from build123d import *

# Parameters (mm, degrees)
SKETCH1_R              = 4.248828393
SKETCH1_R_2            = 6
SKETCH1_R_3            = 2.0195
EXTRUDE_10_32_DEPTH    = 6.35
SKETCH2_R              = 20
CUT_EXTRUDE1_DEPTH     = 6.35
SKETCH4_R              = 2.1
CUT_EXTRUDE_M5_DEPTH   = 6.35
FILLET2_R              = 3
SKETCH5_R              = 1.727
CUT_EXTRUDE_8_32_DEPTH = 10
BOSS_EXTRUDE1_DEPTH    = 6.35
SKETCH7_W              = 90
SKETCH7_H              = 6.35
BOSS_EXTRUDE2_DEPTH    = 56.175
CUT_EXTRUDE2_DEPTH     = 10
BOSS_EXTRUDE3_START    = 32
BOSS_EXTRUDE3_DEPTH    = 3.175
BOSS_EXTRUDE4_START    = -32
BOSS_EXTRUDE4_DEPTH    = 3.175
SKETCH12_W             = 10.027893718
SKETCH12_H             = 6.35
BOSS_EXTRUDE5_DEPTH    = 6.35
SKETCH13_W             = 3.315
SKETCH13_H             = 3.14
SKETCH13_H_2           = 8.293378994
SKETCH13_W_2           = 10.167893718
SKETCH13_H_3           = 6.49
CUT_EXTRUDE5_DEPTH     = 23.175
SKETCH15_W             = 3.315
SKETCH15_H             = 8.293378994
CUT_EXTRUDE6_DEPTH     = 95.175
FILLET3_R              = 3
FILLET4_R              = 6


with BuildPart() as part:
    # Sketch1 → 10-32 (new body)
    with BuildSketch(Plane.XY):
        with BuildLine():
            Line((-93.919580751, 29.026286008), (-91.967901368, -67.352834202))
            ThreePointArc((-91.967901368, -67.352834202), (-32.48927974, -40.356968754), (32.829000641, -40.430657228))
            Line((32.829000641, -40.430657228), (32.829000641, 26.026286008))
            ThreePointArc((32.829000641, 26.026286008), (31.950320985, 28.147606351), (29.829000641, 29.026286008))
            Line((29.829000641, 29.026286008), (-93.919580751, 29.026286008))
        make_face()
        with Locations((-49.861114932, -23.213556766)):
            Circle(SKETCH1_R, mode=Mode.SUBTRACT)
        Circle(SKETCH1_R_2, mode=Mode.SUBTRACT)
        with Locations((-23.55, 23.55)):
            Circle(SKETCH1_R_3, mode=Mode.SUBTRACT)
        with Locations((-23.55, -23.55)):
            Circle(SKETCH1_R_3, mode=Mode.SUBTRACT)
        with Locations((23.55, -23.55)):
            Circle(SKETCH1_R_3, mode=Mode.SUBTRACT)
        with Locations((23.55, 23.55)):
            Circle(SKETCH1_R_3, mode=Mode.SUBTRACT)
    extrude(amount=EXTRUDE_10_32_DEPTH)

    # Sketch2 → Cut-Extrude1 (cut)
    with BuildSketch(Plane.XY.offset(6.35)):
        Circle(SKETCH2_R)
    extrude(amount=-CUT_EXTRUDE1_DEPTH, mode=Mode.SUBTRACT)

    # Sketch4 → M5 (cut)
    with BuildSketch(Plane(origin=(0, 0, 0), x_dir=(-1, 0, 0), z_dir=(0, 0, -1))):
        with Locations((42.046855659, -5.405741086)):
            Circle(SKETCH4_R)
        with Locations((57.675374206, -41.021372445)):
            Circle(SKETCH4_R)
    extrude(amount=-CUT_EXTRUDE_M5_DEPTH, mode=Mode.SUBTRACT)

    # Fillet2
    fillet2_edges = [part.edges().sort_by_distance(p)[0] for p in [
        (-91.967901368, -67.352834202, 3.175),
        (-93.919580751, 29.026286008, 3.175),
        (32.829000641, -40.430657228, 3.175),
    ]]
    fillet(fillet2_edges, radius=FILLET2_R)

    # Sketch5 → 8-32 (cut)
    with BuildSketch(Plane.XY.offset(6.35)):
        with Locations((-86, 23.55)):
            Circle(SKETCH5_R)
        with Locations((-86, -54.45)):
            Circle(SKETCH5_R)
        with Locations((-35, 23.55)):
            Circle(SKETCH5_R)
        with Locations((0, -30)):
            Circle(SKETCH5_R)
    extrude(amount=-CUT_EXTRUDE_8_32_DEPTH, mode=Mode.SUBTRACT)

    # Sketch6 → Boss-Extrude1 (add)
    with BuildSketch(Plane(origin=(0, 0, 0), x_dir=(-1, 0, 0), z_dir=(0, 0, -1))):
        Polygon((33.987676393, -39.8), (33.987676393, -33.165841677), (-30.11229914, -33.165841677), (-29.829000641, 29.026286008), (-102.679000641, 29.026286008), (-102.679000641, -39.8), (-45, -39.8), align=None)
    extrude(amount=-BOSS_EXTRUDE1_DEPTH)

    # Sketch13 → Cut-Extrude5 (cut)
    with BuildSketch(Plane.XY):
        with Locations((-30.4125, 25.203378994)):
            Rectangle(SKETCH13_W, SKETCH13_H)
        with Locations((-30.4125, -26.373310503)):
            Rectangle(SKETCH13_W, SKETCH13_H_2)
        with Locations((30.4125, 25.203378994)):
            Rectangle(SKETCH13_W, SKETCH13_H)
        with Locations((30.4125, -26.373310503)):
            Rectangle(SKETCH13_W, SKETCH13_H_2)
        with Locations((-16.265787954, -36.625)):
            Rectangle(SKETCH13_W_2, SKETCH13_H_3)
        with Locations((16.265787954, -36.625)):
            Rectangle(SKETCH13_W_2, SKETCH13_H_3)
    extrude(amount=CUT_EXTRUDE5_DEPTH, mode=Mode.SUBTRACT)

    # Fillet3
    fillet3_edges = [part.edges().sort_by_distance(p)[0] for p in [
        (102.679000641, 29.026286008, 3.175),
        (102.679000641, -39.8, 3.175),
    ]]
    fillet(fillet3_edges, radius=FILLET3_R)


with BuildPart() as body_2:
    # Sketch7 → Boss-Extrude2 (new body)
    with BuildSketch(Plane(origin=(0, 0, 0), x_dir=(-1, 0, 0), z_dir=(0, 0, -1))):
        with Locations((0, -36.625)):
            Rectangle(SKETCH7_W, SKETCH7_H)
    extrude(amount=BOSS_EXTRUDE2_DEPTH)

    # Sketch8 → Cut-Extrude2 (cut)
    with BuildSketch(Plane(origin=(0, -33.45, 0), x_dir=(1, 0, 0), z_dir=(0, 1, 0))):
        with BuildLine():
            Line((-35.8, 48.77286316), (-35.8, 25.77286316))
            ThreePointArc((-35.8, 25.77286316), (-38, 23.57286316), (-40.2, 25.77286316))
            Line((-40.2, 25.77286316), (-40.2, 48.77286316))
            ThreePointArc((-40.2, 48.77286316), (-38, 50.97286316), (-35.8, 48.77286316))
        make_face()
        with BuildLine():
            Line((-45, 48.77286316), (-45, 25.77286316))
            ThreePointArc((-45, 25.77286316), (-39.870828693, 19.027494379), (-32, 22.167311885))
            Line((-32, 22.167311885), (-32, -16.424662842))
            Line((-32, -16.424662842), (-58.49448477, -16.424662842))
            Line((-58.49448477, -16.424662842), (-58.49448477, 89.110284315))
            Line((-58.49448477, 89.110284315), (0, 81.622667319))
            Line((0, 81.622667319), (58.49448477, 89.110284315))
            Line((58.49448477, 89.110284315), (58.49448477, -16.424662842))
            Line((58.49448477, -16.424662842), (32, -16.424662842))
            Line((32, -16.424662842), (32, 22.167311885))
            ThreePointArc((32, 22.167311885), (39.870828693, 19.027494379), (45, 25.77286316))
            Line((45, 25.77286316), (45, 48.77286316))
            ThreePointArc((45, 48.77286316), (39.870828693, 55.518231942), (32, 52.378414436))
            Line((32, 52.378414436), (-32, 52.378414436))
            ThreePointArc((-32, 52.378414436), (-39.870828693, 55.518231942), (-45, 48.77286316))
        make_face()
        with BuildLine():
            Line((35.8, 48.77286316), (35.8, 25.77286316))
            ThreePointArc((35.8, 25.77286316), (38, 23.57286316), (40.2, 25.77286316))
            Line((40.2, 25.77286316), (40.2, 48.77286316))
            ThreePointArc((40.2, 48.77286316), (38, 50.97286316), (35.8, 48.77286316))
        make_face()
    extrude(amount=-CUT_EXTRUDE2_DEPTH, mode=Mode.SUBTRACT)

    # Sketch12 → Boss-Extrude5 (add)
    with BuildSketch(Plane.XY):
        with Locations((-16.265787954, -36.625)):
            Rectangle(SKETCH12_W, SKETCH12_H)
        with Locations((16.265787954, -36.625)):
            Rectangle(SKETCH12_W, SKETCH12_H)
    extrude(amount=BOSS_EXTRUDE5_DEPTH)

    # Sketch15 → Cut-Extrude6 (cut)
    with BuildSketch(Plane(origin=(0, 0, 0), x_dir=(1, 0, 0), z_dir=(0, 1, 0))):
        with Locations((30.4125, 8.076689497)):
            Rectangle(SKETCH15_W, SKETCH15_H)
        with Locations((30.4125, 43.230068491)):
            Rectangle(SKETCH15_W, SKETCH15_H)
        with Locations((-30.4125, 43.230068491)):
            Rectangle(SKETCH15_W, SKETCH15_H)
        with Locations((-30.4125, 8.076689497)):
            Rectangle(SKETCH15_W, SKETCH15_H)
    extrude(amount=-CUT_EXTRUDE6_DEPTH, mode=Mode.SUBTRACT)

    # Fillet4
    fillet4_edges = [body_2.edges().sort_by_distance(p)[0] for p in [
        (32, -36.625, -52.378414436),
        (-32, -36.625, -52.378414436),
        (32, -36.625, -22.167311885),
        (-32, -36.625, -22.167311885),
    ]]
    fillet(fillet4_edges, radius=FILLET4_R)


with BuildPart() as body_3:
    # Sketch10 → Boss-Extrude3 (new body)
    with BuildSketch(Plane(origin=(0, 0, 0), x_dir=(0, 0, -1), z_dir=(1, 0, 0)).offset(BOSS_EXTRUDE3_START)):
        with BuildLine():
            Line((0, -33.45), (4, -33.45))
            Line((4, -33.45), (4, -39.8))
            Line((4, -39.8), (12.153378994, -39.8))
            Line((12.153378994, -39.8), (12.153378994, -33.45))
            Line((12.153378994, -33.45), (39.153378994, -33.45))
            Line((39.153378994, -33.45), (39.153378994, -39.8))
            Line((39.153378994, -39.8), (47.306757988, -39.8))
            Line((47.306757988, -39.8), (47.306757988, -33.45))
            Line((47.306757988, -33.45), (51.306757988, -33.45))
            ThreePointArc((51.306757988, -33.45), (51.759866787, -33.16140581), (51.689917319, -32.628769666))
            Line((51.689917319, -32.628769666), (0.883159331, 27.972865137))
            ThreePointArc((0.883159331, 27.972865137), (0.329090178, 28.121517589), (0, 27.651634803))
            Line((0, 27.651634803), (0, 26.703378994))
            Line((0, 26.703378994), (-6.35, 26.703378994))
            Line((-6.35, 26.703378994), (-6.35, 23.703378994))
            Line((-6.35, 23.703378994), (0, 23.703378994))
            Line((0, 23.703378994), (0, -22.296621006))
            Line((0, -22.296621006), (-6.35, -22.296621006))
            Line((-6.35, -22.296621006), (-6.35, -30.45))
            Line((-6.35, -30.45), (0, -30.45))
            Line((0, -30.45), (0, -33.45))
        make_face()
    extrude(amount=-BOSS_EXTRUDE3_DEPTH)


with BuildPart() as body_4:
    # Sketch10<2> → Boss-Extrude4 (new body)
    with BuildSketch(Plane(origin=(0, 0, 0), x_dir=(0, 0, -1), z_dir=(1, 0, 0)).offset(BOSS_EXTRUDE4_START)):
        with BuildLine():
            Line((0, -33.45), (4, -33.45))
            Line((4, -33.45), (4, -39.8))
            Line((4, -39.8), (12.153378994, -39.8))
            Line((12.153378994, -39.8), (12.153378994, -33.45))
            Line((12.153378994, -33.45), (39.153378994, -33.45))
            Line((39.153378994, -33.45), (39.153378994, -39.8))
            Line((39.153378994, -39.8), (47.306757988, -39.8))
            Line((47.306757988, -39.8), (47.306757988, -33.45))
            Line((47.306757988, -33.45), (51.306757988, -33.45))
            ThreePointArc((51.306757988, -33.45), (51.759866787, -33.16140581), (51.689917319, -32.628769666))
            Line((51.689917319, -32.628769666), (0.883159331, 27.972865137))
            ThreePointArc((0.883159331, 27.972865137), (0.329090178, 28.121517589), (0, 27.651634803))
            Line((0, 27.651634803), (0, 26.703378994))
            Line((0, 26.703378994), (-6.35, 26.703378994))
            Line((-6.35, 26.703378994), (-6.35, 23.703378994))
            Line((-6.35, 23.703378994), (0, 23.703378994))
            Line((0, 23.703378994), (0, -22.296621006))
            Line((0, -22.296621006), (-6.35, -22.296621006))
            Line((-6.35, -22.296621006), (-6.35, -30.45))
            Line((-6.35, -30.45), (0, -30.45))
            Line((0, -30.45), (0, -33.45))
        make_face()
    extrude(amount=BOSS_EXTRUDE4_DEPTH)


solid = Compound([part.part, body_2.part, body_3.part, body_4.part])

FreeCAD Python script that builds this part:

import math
import FreeCAD as App
import Part
import Sketcher


def edges_at(feature, points):
    """Names of the edges that pass closest to the given points."""
    edges = feature.Shape.Edges
    near = lambda p: min(range(len(edges)), key=lambda i: edges[i].distToShape(Part.Vertex(*p))[0])
    return sorted({f"Edge{near(p) + 1}" for p in points})


def add_polygon(sketch, points):
    """Adds a closed chain of lines whose ends are joined by coincident constraints."""
    first, n = sketch.GeometryCount, len(points)
    for a, b in zip(points, points[1:] + points[:1]):
        sketch.addGeometry(Part.LineSegment(App.Vector(*a, 0), App.Vector(*b, 0)), False)
    for i in range(n):
        sketch.addConstraint(Sketcher.Constraint("Coincident", first + i, 2, first + (i + 1) % n, 1))

doc = App.newDocument("Part")
body = doc.addObject("PartDesign::Body", "Body")

# Sketch on XY plane
sketch1 = body.newObject("Sketcher::SketchObject", "Sketch")
sketch1.AttachmentSupport = (doc.getObject("XY_Plane"), [""])
sketch1.MapMode = "FlatFace"
sketch1.addGeometry([
    Part.LineSegment(App.Vector(-93.919581, 29.026286, 0), App.Vector(-91.967901, -67.352834, 0)),  # 0
    Part.ArcOfCircle(Part.Circle(App.Vector(0, -190.96, 0), App.Vector(0, 0, 1), 154.067603), math.radians(77.696986), math.radians(126.650492)),  # 1
    Part.LineSegment(App.Vector(32.829001, -40.430657, 0), App.Vector(32.829001, 26.026286, 0)),  # 2
    Part.ArcOfCircle(Part.Circle(App.Vector(29.829001, 26.026286, 0), App.Vector(0, 0, 1), 3), math.radians(0), math.radians(90)),  # 3
    Part.LineSegment(App.Vector(29.829001, 29.026286, 0), App.Vector(-93.919581, 29.026286, 0)),  # 4
    Part.Circle(App.Vector(-49.861115, -23.213557, 0), App.Vector(0, 0, 1), 4.248828),  # 5
    Part.Circle(App.Vector(-23.55, -23.55, 0), App.Vector(0, 0, 1), 2.0195),  # 6
    Part.Circle(App.Vector(23.55, -23.55, 0), App.Vector(0, 0, 1), 2.0195),  # 7
    Part.Circle(App.Vector(-23.55, 23.55, 0), App.Vector(0, 0, 1), 2.0195),  # 8
    Part.Circle(App.Vector(0, 0, 0), App.Vector(0, 0, 1), 6),  # 9
    Part.Circle(App.Vector(23.55, 23.55, 0), App.Vector(0, 0, 1), 2.0195),  # 10
], False)
sketch1.addConstraint([
    Sketcher.Constraint("Coincident", 0, 2, 1, 2),
    Sketcher.Constraint("Coincident", 1, 1, 2, 1),
    Sketcher.Constraint("Tangent", 2, 2, 3, 1),
    Sketcher.Constraint("Tangent", 3, 2, 4, 1),
    Sketcher.Constraint("Coincident", 4, 2, 0, 1),
    Sketcher.Constraint("Vertical", 2),
    Sketcher.Constraint("Horizontal", 4),
    Sketcher.Constraint("Coincident", 9, 3, -1, 1),
    Sketcher.Constraint("Equal", 6, 7),
    Sketcher.Constraint("Equal", 7, 8),
    Sketcher.Constraint("Equal", 8, 10),
    Sketcher.Constraint("Symmetric", 7, 3, 8, 3, -1, 1),
    Sketcher.Constraint("Symmetric", 6, 3, 10, 3, -1, 1),
    Sketcher.Constraint("Symmetric", 6, 3, 7, 3, -2),
    Sketcher.Constraint("PointOnObject", 1, 3, -2),
    Sketcher.Constraint("Diameter", 9, 12.0),
    Sketcher.Constraint("Radius", 3, 3.0),
    Sketcher.Constraint("Diameter", 6, 4.039),
    Sketcher.Constraint("DistanceX", 6, 3, 7, 3, 47.1),
    Sketcher.Constraint("DistanceY", 6, 3, 8, 3, 47.1),
    Sketcher.Constraint("DistanceY", 1, 3, -1, 1, 190.96),
    Sketcher.Constraint("Diameter", 5, 8.497657),
    Sketcher.Constraint("DistanceX", -1, 1, 3, 3, 29.829001),
    Sketcher.Constraint("Radius", 1, 154.067603),
    Sketcher.Constraint("DistanceX", 4, 2, 4, 1, 123.748581),
    Sketcher.Constraint("DistanceX", 0, 2, -1, 1, 91.967901),
    Sketcher.Constraint("Distance", 0, 96.398879),
    Sketcher.Constraint("DistanceX", 5, 3, -1, 1, 49.861115),
    Sketcher.Constraint("DistanceY", 5, 3, -1, 1, 23.213557),
])
pad1 = body.newObject("PartDesign::Pad", "Pad")
pad1.Profile = sketch1
pad1.Length = 6.35

# Sketch on XY plane
sketch2 = body.newObject("Sketcher::SketchObject", "Sketch001")
sketch2.AttachmentSupport = (doc.getObject("XY_Plane"), [""])
sketch2.MapMode = "FlatFace"
sketch2.AttachmentOffset = App.Placement(App.Vector(0, 0, 6.35), App.Rotation())
sketch2.addGeometry(Part.Circle(App.Vector(0, 0, 0), App.Vector(0, 0, 1), 20), False)
sketch2.addConstraint([
    Sketcher.Constraint("Coincident", 0, 3, -1, 1),
    Sketcher.Constraint("Diameter", 0, 40.0),
])
pocket1 = body.newObject("PartDesign::Pocket", "Pocket")
pocket1.Profile = sketch2
pocket1.Length = 6.35

# Sketch on XY plane
sketch3 = body.newObject("Sketcher::SketchObject", "Sketch002")
sketch3.AttachmentSupport = (doc.getObject("XY_Plane"), [""])
sketch3.MapMode = "FlatFace"
sketch3.addGeometry([
    Part.Circle(App.Vector(-42.046856, -5.405741, 0), App.Vector(0, 0, 1), 2.1),
    Part.Circle(App.Vector(-57.675374, -41.021372, 0), App.Vector(0, 0, 1), 2.1),
], False)
sketch3.addConstraint([
    Sketcher.Constraint("Equal", 0, 1),
    Sketcher.Constraint("Diameter", 0, 4.2),
    Sketcher.Constraint("DistanceY", 0, 3, -1, 1, 5.405741),
    Sketcher.Constraint("DistanceX", 1, 3, 0, 3, 15.628519),
    Sketcher.Constraint("DistanceY", 1, 3, 0, 3, 35.615631),
    Sketcher.Constraint("DistanceX", 0, 3, -1, 1, 42.046856),
])
pocket2 = body.newObject("PartDesign::Pocket", "Pocket001")
pocket2.Profile = sketch3
pocket2.Length = 6.35
pocket2.Reversed = True
doc.recompute()

fillet = body.newObject("PartDesign::Fillet", "Fillet")
fillet.Base = (pocket2, edges_at(pocket2, [(-91.968, -67.353, 3.175), (-93.92, 29.026, 3.175), (32.829, -40.431, 3.175)]))
fillet.Radius = 3

# Sketch on XY plane
sketch4 = body.newObject("Sketcher::SketchObject", "Sketch003")
sketch4.AttachmentSupport = (doc.getObject("XY_Plane"), [""])
sketch4.MapMode = "FlatFace"
sketch4.AttachmentOffset = App.Placement(App.Vector(0, 0, 6.35), App.Rotation())
sketch4.addGeometry([
    Part.Circle(App.Vector(-86, 23.55, 0), App.Vector(0, 0, 1), 1.727),
    Part.Circle(App.Vector(-86, -54.45, 0), App.Vector(0, 0, 1), 1.727),
    Part.Circle(App.Vector(-35, 23.55, 0), App.Vector(0, 0, 1), 1.727),
    Part.Circle(App.Vector(0, -30, 0), App.Vector(0, 0, 1), 1.727),
], False)
sketch4.addConstraint([
    Sketcher.Constraint("Equal", 0, 1),
    Sketcher.Constraint("Equal", 1, 2),
    Sketcher.Constraint("Equal", 2, 3),
    Sketcher.Constraint("PointOnObject", 3, 3, -2),
    Sketcher.Constraint("Horizontal", 0, 3, 2, 3),
    Sketcher.Constraint("Vertical", 0, 3, 1, 3),
    Sketcher.Constraint("Diameter", 0, 3.454),
    Sketcher.Constraint("DistanceX", 0, 3, -1, 1, 86.0),
    Sketcher.Constraint("DistanceX", 2, 3, -1, 1, 35.0),
    Sketcher.Constraint("DistanceY", 3, 3, -1, 1, 30.0),
    Sketcher.Constraint("DistanceY", 1, 3, 0, 3, 78.0),
    Sketcher.Constraint("DistanceY", -1, 1, 0, 3, 23.55),
])
pocket3 = body.newObject("PartDesign::Pocket", "Pocket002")
pocket3.Profile = sketch4
pocket3.Length = 10

# Sketch on XY plane
sketch5 = body.newObject("Sketcher::SketchObject", "Sketch004")
sketch5.AttachmentSupport = (doc.getObject("XY_Plane"), [""])
sketch5.MapMode = "FlatFace"
add_polygon(sketch5, [(-33.987676, -39.8), (-33.987676, -33.165842), (30.112299, -33.165842), (29.829001, 29.026286), (102.679001, 29.026286), (102.679001, -39.8)])  # lines 0-5
sketch5.addConstraint([
    Sketcher.Constraint("Vertical", 0),
    Sketcher.Constraint("Horizontal", 1),
    Sketcher.Constraint("Horizontal", 3),
    Sketcher.Constraint("Vertical", 4),
    Sketcher.Constraint("Horizontal", 5),
    Sketcher.Constraint("DistanceX", 3, 1, 3, 2, 72.85),
    Sketcher.Constraint("DistanceY", 4, 2, -1, 1, 39.8),
    Sketcher.Constraint("DistanceX", -1, 1, 2, 2, 29.829001),
    Sketcher.Constraint("DistanceY", 0, 1, 0, 2, 6.634158),
    Sketcher.Constraint("DistanceX", -1, 1, 1, 2, 30.112299),
    Sketcher.Constraint("DistanceX", 1, 1, 1, 2, 64.099976),
    Sketcher.Constraint("DistanceY", 4, 2, 4, 1, 68.826286),
])
pad2 = body.newObject("PartDesign::Pad", "Pad001")
pad2.Profile = sketch5
pad2.Length = 6.35

# Sketch on XY plane
sketch6 = body.newObject("Sketcher::SketchObject", "Sketch005")
sketch6.AttachmentSupport = (doc.getObject("XY_Plane"), [""])
sketch6.MapMode = "FlatFace"
add_polygon(sketch6, [(-32.07, 26.773379), (-32.07, 23.633379), (-28.755, 23.633379), (-28.755, 26.773379)])  # lines 0-3
add_polygon(sketch6, [(-32.07, -22.226621), (-32.07, -30.52), (-28.755, -30.52), (-28.755, -22.226621)])  # lines 4-7
add_polygon(sketch6, [(28.755, 26.773379), (28.755, 23.633379), (32.07, 23.633379), (32.07, 26.773379)])  # lines 8-11
add_polygon(sketch6, [(28.755, -22.226621), (28.755, -30.52), (32.07, -30.52), (32.07, -22.226621)])  # lines 12-15
add_polygon(sketch6, [(-21.349735, -33.38), (-21.349735, -39.87), (-11.181841, -39.87), (-11.181841, -33.38)])  # lines 16-19
add_polygon(sketch6, [(11.181841, -33.38), (11.181841, -39.87), (21.349735, -39.87), (21.349735, -33.38)])  # lines 20-23
sketch6.addConstraint([
    Sketcher.Constraint("Vertical", 0),
    Sketcher.Constraint("Horizontal", 1),
    Sketcher.Constraint("Vertical", 2),
    Sketcher.Constraint("Horizontal", 3),
    Sketcher.Constraint("Vertical", 4),
    Sketcher.Constraint("Horizontal", 5),
    Sketcher.Constraint("Vertical", 6),
    Sketcher.Constraint("Horizontal", 7),
    Sketcher.Constraint("Vertical", 8),
    Sketcher.Constraint("Horizontal", 9),
    Sketcher.Constraint("Vertical", 10),
    Sketcher.Constraint("Horizontal", 11),
    Sketcher.Constraint("Vertical", 12),
    Sketcher.Constraint("Horizontal", 13),
    Sketcher.Constraint("Vertical", 14),
    Sketcher.Constraint("Horizontal", 15),
    Sketcher.Constraint("Vertical", 16),
    Sketcher.Constraint("Horizontal", 17),
    Sketcher.Constraint("Vertical", 18),
    Sketcher.Constraint("Horizontal", 19),
    Sketcher.Constraint("Vertical", 20),
    Sketcher.Constraint("Horizontal", 21),
    Sketcher.Constraint("Vertical", 22),
    Sketcher.Constraint("Horizontal", 23),
    Sketcher.Constraint("Symmetric", 1, 2, 8, 2, -2),
    Sketcher.Constraint("Symmetric", 3, 2, 10, 2, -2),
    Sketcher.Constraint("Symmetric", 5, 2, 12, 2, -2),
    Sketcher.Constraint("Symmetric", 7, 2, 14, 2, -2),
    Sketcher.Constraint("Symmetric", 17, 2, 20, 2, -2),
    Sketcher.Constraint("Symmetric", 19, 2, 22, 2, -2),
    Sketcher.Constraint("Vertical", 3, 2, 4, 2),
    Sketcher.Constraint("Vertical", 2, 2, 5, 2),
    Sketcher.Constraint("DistanceY", 6, 2, 2, 2, 49.0),
    Sketcher.Constraint("DistanceY", 0, 2, 0, 1, 3.14),
    Sketcher.Constraint("DistanceY", 16, 2, 16, 1, 6.49),
    Sketcher.Constraint("DistanceX", 1, 1, 1, 2, 3.315),
    Sketcher.Constraint("DistanceX", 0, 2, -1, 1, 32.07),
    Sketcher.Constraint("DistanceY", 4, 2, -1, 1, 30.52),
    Sketcher.Constraint("DistanceY", 16, 2, -1, 1, 39.87),
    Sketcher.Constraint("DistanceY", 4, 2, 4, 1, 8.293379),
    Sketcher.Constraint("DistanceX", 17, 1, 17, 2, 10.167894),
    Sketcher.Constraint("DistanceX", 17, 2, -1, 1, 11.181841),
])
pocket4 = body.newObject("PartDesign::Pocket", "Pocket003")
pocket4.Profile = sketch6
pocket4.Length = 23.175
pocket4.Reversed = True
doc.recompute()

fillet2 = body.newObject("PartDesign::Fillet", "Fillet001")
fillet2.Base = (pocket4, edges_at(pocket4, [(102.679, 29.026, 3.175), (102.679, -39.8, 3.175)]))
fillet2.Radius = 3
body2 = doc.addObject("PartDesign::Body", "Body001")

# Sketch on XY plane
sketch7 = body2.newObject("Sketcher::SketchObject", "Sketch006")
sketch7.AttachmentSupport = (doc.getObject("XY_Plane001"), [""])
sketch7.MapMode = "FlatFace"
add_polygon(sketch7, [(45, -33.45), (45, -39.8), (-45, -39.8), (-45, -33.45)])  # lines 0-3
sketch7.addConstraint([
    Sketcher.Constraint("Vertical", 0),
    Sketcher.Constraint("Horizontal", 1),
    Sketcher.Constraint("Vertical", 2),
    Sketcher.Constraint("Horizontal", 3),
    Sketcher.Constraint("DistanceX", 1, 2, 1, 1, 90.0),
    Sketcher.Constraint("DistanceX", -1, 1, 0, 2, 45.0),
    Sketcher.Constraint("DistanceY", 0, 2, 0, 1, 6.35),
    Sketcher.Constraint("DistanceY", 0, 2, -1, 1, 39.8),
])
pad3 = body2.newObject("PartDesign::Pad", "Pad002")
pad3.Profile = sketch7
pad3.Length = 56.175
pad3.Reversed = True

# Sketch on XZ plane
sketch8 = body2.newObject("Sketcher::SketchObject", "Sketch007")
sketch8.AttachmentSupport = (doc.getObject("XZ_Plane001"), [""])
sketch8.MapMode = "FlatFace"
sketch8.AttachmentOffset = App.Placement(App.Vector(0, 0, 33.45), App.Rotation())
sketch8.addGeometry([
    Part.LineSegment(App.Vector(-35.8, -25.772863, 0), App.Vector(-35.8, -48.772863, 0)),  # 0
    Part.ArcOfCircle(Part.Circle(App.Vector(-38, -48.772863, 0), App.Vector(0, 0, 1), 2.2), math.radians(180), math.radians(360)),  # 1
    Part.LineSegment(App.Vector(-40.2, -48.772863, 0), App.Vector(-40.2, -25.772863, 0)),  # 2
    Part.ArcOfCircle(Part.Circle(App.Vector(-38, -25.772863, 0), App.Vector(0, 0, 1), 2.2), math.radians(0), math.radians(180)),  # 3
    Part.LineSegment(App.Vector(-45, -25.772863, 0), App.Vector(-45, -48.772863, 0)),  # 4
    Part.ArcOfCircle(Part.Circle(App.Vector(-38, -48.772863, 0), App.Vector(0, 0, 1), 7), math.radians(180), math.radians(328.997281)),  # 5
    Part.LineSegment(App.Vector(-32, -52.378414, 0), App.Vector(32, -52.378414, 0)),  # 6
    Part.ArcOfCircle(Part.Circle(App.Vector(38, -48.772863, 0), App.Vector(0, 0, 1), 7), math.radians(-148.997281), math.radians(0)),  # 7
    Part.LineSegment(App.Vector(45, -48.772863, 0), App.Vector(45, -25.772863, 0)),  # 8
    Part.ArcOfCircle(Part.Circle(App.Vector(38, -25.772863, 0), App.Vector(0, 0, 1), 7), math.radians(0), math.radians(148.997281)),  # 9
    Part.LineSegment(App.Vector(32, -22.167312, 0), App.Vector(32, 16.424663, 0)),  # 10
    Part.LineSegment(App.Vector(32, 16.424663, 0), App.Vector(58.494485, 16.424663, 0)),  # 11
    Part.LineSegment(App.Vector(58.494485, 16.424663, 0), App.Vector(58.494485, -89.110284, 0)),  # 12
    Part.LineSegment(App.Vector(58.494485, -89.110284, 0), App.Vector(0, -81.622667, 0)),  # 13
    Part.LineSegment(App.Vector(0, -81.622667, 0), App.Vector(-58.494485, -89.110284, 0)),  # 14
    Part.LineSegment(App.Vector(-58.494485, -89.110284, 0), App.Vector(-58.494485, 16.424663, 0)),  # 15
    Part.LineSegment(App.Vector(-58.494485, 16.424663, 0), App.Vector(-32, 16.424663, 0)),  # 16
    Part.LineSegment(App.Vector(-32, 16.424663, 0), App.Vector(-32, -22.167312, 0)),  # 17
    Part.ArcOfCircle(Part.Circle(App.Vector(-38, -25.772863, 0), App.Vector(0, 0, 1), 7), math.radians(31.002719), math.radians(180)),  # 18
    Part.LineSegment(App.Vector(35.8, -48.772863, 0), App.Vector(35.8, -25.772863, 0)),  # 19
    Part.ArcOfCircle(Part.Circle(App.Vector(38, -25.772863, 0), App.Vector(0, 0, 1), 2.2), math.radians(0), math.radians(180)),  # 20
    Part.LineSegment(App.Vector(40.2, -25.772863, 0), App.Vector(40.2, -48.772863, 0)),  # 21
    Part.ArcOfCircle(Part.Circle(App.Vector(38, -48.772863, 0), App.Vector(0, 0, 1), 2.2), math.radians(180), math.radians(360)),  # 22
], False)
sketch8.addConstraint([
    Sketcher.Constraint("Tangent", 0, 2, 1, 2),
    Sketcher.Constraint("Tangent", 1, 1, 2, 1),
    Sketcher.Constraint("Tangent", 2, 2, 3, 2),
    Sketcher.Constraint("Tangent", 3, 1, 0, 1),
    Sketcher.Constraint("Tangent", 4, 2, 5, 1),
    Sketcher.Constraint("Coincident", 5, 2, 6, 1),
    Sketcher.Constraint("Coincident", 6, 2, 7, 1),
    Sketcher.Constraint("Tangent", 7, 2, 8, 1),
    Sketcher.Constraint("Tangent", 8, 2, 9, 1),
    Sketcher.Constraint("Coincident", 9, 2, 10, 1),
    Sketcher.Constraint("Coincident", 10, 2, 11, 1),
    Sketcher.Constraint("Coincident", 11, 2, 12, 1),
    Sketcher.Constraint("Coincident", 12, 2, 13, 1),
    Sketcher.Constraint("Coincident", 13, 2, 14, 1),
    Sketcher.Constraint("Coincident", 14, 2, 15, 1),
    Sketcher.Constraint("Coincident", 15, 2, 16, 1),
    Sketcher.Constraint("Coincident", 16, 2, 17, 1),
    Sketcher.Constraint("Coincident", 17, 2, 18, 1),
    Sketcher.Constraint("Tangent", 18, 2, 4, 1),
    Sketcher.Constraint("Tangent", 19, 2, 20, 2),
    Sketcher.Constraint("Tangent", 20, 1, 21, 1),
    Sketcher.Constraint("Tangent", 21, 2, 22, 2),
    Sketcher.Constraint("Tangent", 22, 1, 19, 1),
    Sketcher.Constraint("Vertical", 0),
    Sketcher.Constraint("Vertical", 2),
    Sketcher.Constraint("Vertical", 4),
    Sketcher.Constraint("Horizontal", 6),
    Sketcher.Constraint("Vertical", 8),
    Sketcher.Constraint("Vertical", 10),
    Sketcher.Constraint("Horizontal", 11),
    Sketcher.Constraint("Vertical", 12),
    Sketcher.Constraint("Vertical", 15),
    Sketcher.Constraint("Horizontal", 16),
    Sketcher.Constraint("Vertical", 17),
    Sketcher.Constraint("Vertical", 19),
    Sketcher.Constraint("Vertical", 21),
    Sketcher.Constraint("Coincident", 5, 3, 1, 3),
    Sketcher.Constraint("Coincident", 18, 3, 3, 3),
    Sketcher.Constraint("Coincident", 20, 3, 9, 3),
    Sketcher.Constraint("Coincident", 22, 3, 7, 3),
    Sketcher.Constraint("Equal", 5, 7),
    Sketcher.Constraint("Equal", 3, 20),
    Sketcher.Constraint("Symmetric", 1, 3, 7, 3, -2),
    Sketcher.Constraint("Symmetric", 12, 2, 14, 2, -2),
    Sketcher.Constraint("Symmetric", 10, 2, 16, 2, -2),
    Sketcher.Constraint("PointOnObject", 13, 2, -2),
    Sketcher.Constraint("Horizontal", 3, 3, 9, 3),
    Sketcher.Constraint("Vertical", 6, 2, 9, 2),
    Sketcher.Constraint("Radius", 5, 7.0),
    Sketcher.Constraint("Radius", 1, 2.2),
    Sketcher.Constraint("DistanceX", 6, 1, 6, 2, 64.0),
    Sketcher.Constraint("DistanceY", 0, 2, 0, 1, 23.0),
    Sketcher.Constraint("DistanceX", 1, 3, -1, 1, 38.0),
    Sketcher.Constraint("DistanceX", 11, 1, 11, 2, 26.494485),
    Sketcher.Constraint("DistanceY", 10, 1, 10, 2, 38.591975),
    Sketcher.Constraint("DistanceY", 12, 2, 12, 1, 105.534947),
    Sketcher.Constraint("DistanceY", 9, 2, -1, 1, 22.167312),
    Sketcher.Constraint("Distance", 13, 58.971766),
])
pocket5 = body2.newObject("PartDesign::Pocket", "Pocket004")
pocket5.Profile = sketch8
pocket5.Length = 10
pocket5.Reversed = True

# Sketch on XY plane
sketch9 = body2.newObject("Sketcher::SketchObject", "Sketch008")
sketch9.AttachmentSupport = (doc.getObject("XY_Plane001"), [""])
sketch9.MapMode = "FlatFace"
add_polygon(sketch9, [(-21.279735, -33.45), (-21.279735, -39.8), (-11.251841, -39.8), (-11.251841, -33.45)])  # lines 0-3
add_polygon(sketch9, [(11.251841, -33.45), (11.251841, -39.8), (21.279735, -39.8), (21.279735, -33.45)])  # lines 4-7
sketch9.addConstraint([
    Sketcher.Constraint("Vertical", 0),
    Sketcher.Constraint("Horizontal", 1),
    Sketcher.Constraint("Vertical", 2),
    Sketcher.Constraint("Horizontal", 3),
    Sketcher.Constraint("Vertical", 4),
    Sketcher.Constraint("Horizontal", 5),
    Sketcher.Constraint("Vertical", 6),
    Sketcher.Constraint("Horizontal", 7),
    Sketcher.Constraint("Symmetric", 1, 2, 4, 2, -2),
    Sketcher.Constraint("Symmetric", 3, 2, 6, 2, -2),
    Sketcher.Constraint("DistanceY", 0, 2, 0, 1, 6.35),
    Sketcher.Constraint("DistanceY", 0, 2, -1, 1, 39.8),
    Sketcher.Constraint("DistanceX", 1, 1, 1, 2, 10.027894),
    Sketcher.Constraint("DistanceX", 1, 2, -1, 1, 11.251841),
])
pad4 = body2.newObject("PartDesign::Pad", "Pad003")
pad4.Profile = sketch9
pad4.Length = 6.35

# Sketch on XZ plane
sketch10 = body2.newObject("Sketcher::SketchObject", "Sketch009")
sketch10.AttachmentSupport = (doc.getObject("XZ_Plane001"), [""])
sketch10.MapMode = "FlatFace"
add_polygon(sketch10, [(28.755, -12.223379), (28.755, -3.93), (32.07, -3.93), (32.07, -12.223379)])  # lines 0-3
add_polygon(sketch10, [(28.755, -47.376758), (28.755, -39.083379), (32.07, -39.083379), (32.07, -47.376758)])  # lines 4-7
add_polygon(sketch10, [(-32.07, -47.376758), (-32.07, -39.083379), (-28.755, -39.083379), (-28.755, -47.376758)])  # lines 8-11
add_polygon(sketch10, [(-32.07, -12.223379), (-32.07, -3.93), (-28.755, -3.93), (-28.755, -12.223379)])  # lines 12-15
sketch10.addConstraint([
    Sketcher.Constraint("Vertical", 0),
    Sketcher.Constraint("Horizontal", 1),
    Sketcher.Constraint("Vertical", 2),
    Sketcher.Constraint("Horizontal", 3),
    Sketcher.Constraint("Vertical", 4),
    Sketcher.Constraint("Horizontal", 5),
    Sketcher.Constraint("Vertical", 6),
    Sketcher.Constraint("Horizontal", 7),
    Sketcher.Constraint("Vertical", 8),
    Sketcher.Constraint("Horizontal", 9),
    Sketcher.Constraint("Vertical", 10),
    Sketcher.Constraint("Horizontal", 11),
    Sketcher.Constraint("Vertical", 12),
    Sketcher.Constraint("Horizontal", 13),
    Sketcher.Constraint("Vertical", 14),
    Sketcher.Constraint("Horizontal", 15),
    Sketcher.Constraint("Symmetric", 5, 2, 8, 2, -2),
    Sketcher.Constraint("Symmetric", 7, 2, 10, 2, -2),
    Sketcher.Constraint("Symmetric", 1, 2, 12, 2, -2),
    Sketcher.Constraint("Symmetric", 3, 2, 14, 2, -2),
    Sketcher.Constraint("Vertical", 3, 2, 4, 2),
    Sketcher.Constraint("Vertical", 2, 2, 5, 2),
    Sketcher.Constraint("Equal", 2, 4),
    Sketcher.Constraint("DistanceX", 1, 1, 1, 2, 3.315),
    Sketcher.Constraint("DistanceY", 0, 2, -1, 1, 3.93),
    Sketcher.Constraint("DistanceX", -1, 1, 1, 2, 32.07),
    Sketcher.Constraint("DistanceY", 4, 2, 3, 2, 26.86),
    Sketcher.Constraint("DistanceY", 0, 1, 0, 2, 8.293379),
])
pocket6 = body2.newObject("PartDesign::Pocket", "Pocket005")
pocket6.Profile = sketch10
pocket6.Length = 95.175
pocket6.Reversed = True
doc.recompute()

fillet3 = body2.newObject("PartDesign::Fillet", "Fillet002")
fillet3.Base = (pocket6, edges_at(pocket6, [
    (32, -36.625, -52.378),
    (-32, -36.625, -52.378),
    (32, -36.625, -22.167),
    (-32, -36.625, -22.167),
]))
fillet3.Radius = 6
body3 = doc.addObject("PartDesign::Body", "Body002")

# Sketch on YZ plane
sketch11 = body3.newObject("Sketcher::SketchObject", "Sketch010")
sketch11.AttachmentSupport = (doc.getObject("YZ_Plane002"), [""])
sketch11.MapMode = "FlatFace"
sketch11.AttachmentOffset = App.Placement(App.Vector(0, 0, 32), App.Rotation())
sketch11.addGeometry([
    Part.LineSegment(App.Vector(-33.45, 0, 0), App.Vector(-33.45, -4, 0)),  # 0
    Part.LineSegment(App.Vector(-33.45, -4, 0), App.Vector(-39.8, -4, 0)),  # 1
    Part.LineSegment(App.Vector(-39.8, -4, 0), App.Vector(-39.8, -12.153379, 0)),  # 2
    Part.LineSegment(App.Vector(-39.8, -12.153379, 0), App.Vector(-33.45, -12.153379, 0)),  # 3
    Part.LineSegment(App.Vector(-33.45, -12.153379, 0), App.Vector(-33.45, -39.153379, 0)),  # 4
    Part.LineSegment(App.Vector(-33.45, -39.153379, 0), App.Vector(-39.8, -39.153379, 0)),  # 5
    Part.LineSegment(App.Vector(-39.8, -39.153379, 0), App.Vector(-39.8, -47.306758, 0)),  # 6
    Part.LineSegment(App.Vector(-39.8, -47.306758, 0), App.Vector(-33.45, -47.306758, 0)),  # 7
    Part.LineSegment(App.Vector(-33.45, -47.306758, 0), App.Vector(-33.45, -51.306758, 0)),  # 8
    Part.ArcOfCircle(Part.Circle(App.Vector(-32.95, -51.306758, 0), App.Vector(0, 0, 1), 0.5), math.radians(180), math.radians(309.975551)),  # 9
    Part.LineSegment(App.Vector(-32.62877, -51.689917, 0), App.Vector(27.972865, -0.883159, 0)),  # 10
    Part.ArcOfCircle(Part.Circle(App.Vector(27.651635, -0.5, 0), App.Vector(0, 0, 1), 0.5), math.radians(-50.024449), math.radians(90)),  # 11
    Part.LineSegment(App.Vector(27.651635, 0, 0), App.Vector(26.703379, 0, 0)),  # 12
    Part.LineSegment(App.Vector(26.703379, 0, 0), App.Vector(26.703379, 6.35, 0)),  # 13
    Part.LineSegment(App.Vector(26.703379, 6.35, 0), App.Vector(23.703379, 6.35, 0)),  # 14
    Part.LineSegment(App.Vector(23.703379, 6.35, 0), App.Vector(23.703379, 0, 0)),  # 15
    Part.LineSegment(App.Vector(23.703379, 0, 0), App.Vector(-22.296621, 0, 0)),  # 16
    Part.LineSegment(App.Vector(-22.296621, 0, 0), App.Vector(-22.296621, 6.35, 0)),  # 17
    Part.LineSegment(App.Vector(-22.296621, 6.35, 0), App.Vector(-30.45, 6.35, 0)),  # 18
    Part.LineSegment(App.Vector(-30.45, 6.35, 0), App.Vector(-30.45, 0, 0)),  # 19
    Part.LineSegment(App.Vector(-30.45, 0, 0), App.Vector(-33.45, 0, 0)),  # 20
], False)
sketch11.addConstraint([
    Sketcher.Constraint("Coincident", 0, 2, 1, 1),
    Sketcher.Constraint("Coincident", 1, 2, 2, 1),
    Sketcher.Constraint("Coincident", 2, 2, 3, 1),
    Sketcher.Constraint("Coincident", 3, 2, 4, 1),
    Sketcher.Constraint("Coincident", 4, 2, 5, 1),
    Sketcher.Constraint("Coincident", 5, 2, 6, 1),
    Sketcher.Constraint("Coincident", 6, 2, 7, 1),
    Sketcher.Constraint("Coincident", 7, 2, 8, 1),
    Sketcher.Constraint("Tangent", 8, 2, 9, 1),
    Sketcher.Constraint("Tangent", 9, 2, 10, 1),
    Sketcher.Constraint("Tangent", 10, 2, 11, 1),
    Sketcher.Constraint("Tangent", 11, 2, 12, 1),
    Sketcher.Constraint("Coincident", 12, 2, 13, 1),
    Sketcher.Constraint("Coincident", 13, 2, 14, 1),
    Sketcher.Constraint("Coincident", 14, 2, 15, 1),
    Sketcher.Constraint("Coincident", 15, 2, 16, 1),
    Sketcher.Constraint("Coincident", 16, 2, 17, 1),
    Sketcher.Constraint("Coincident", 17, 2, 18, 1),
    Sketcher.Constraint("Coincident", 18, 2, 19, 1),
    Sketcher.Constraint("Coincident", 19, 2, 20, 1),
    Sketcher.Constraint("Coincident", 20, 2, 0, 1),
    Sketcher.Constraint("Vertical", 0),
    Sketcher.Constraint("Horizontal", 1),
    Sketcher.Constraint("Vertical", 2),
    Sketcher.Constraint("Horizontal", 3),
    Sketcher.Constraint("Vertical", 4),
    Sketcher.Constraint("Horizontal", 5),
    Sketcher.Constraint("Vertical", 6),
    Sketcher.Constraint("Horizontal", 7),
    Sketcher.Constraint("Vertical", 8),
    Sketcher.Constraint("Horizontal", 12),
    Sketcher.Constraint("Vertical", 13),
    Sketcher.Constraint("Horizontal", 14),
    Sketcher.Constraint("Vertical", 15),
    Sketcher.Constraint("Horizontal", 16),
    Sketcher.Constraint("Vertical", 17),
    Sketcher.Constraint("Horizontal", 18),
    Sketcher.Constraint("Vertical", 19),
    Sketcher.Constraint("Horizontal", 20),
    Sketcher.Constraint("Equal", 9, 11),
    Sketcher.Constraint("PointOnObject", 11, 2, -1),
    Sketcher.Constraint("PointOnObject", 15, 2, -1),
    Sketcher.Constraint("PointOnObject", 19, 2, -1),
    Sketcher.Constraint("Horizontal", 14, 2, 17, 2),
    Sketcher.Constraint("Vertical", 0, 2, 3, 2),
    Sketcher.Constraint("Vertical", 2, 2, 5, 2),
    Sketcher.Constraint("Vertical", 4, 2, 7, 2),
    Sketcher.Constraint("Equal", 14, 20),
    Sketcher.Constraint("Equal", 18, 2),
    Sketcher.Constraint("Equal", 2, 6),
    Sketcher.Constraint("Equal", 0, 8),
    Sketcher.Constraint("Equal", 7, 13),
    Sketcher.Constraint("Radius", 9, 0.5),
    Sketcher.Constraint("DistanceX", 14, 2, 14, 1, 3.0),
    Sketcher.Constraint("DistanceX", 16, 2, 16, 1, 46.0),
    Sketcher.Constraint("DistanceY", 0, 2, 0, 1, 4.0),
    Sketcher.Constraint("DistanceY", 4, 2, 4, 1, 27.0),
    Sketcher.Constraint("DistanceX", 1, 2, 1, 1, 6.35),
    Sketcher.Constraint("DistanceX", 1, 2, -1, 1, 39.8),
    Sketcher.Constraint("DistanceX", 18, 2, 18, 1, 8.153379),
    Sketcher.Constraint("DistanceX", 12, 2, 12, 1, 0.948256),
])
pad5 = body3.newObject("PartDesign::Pad", "Pad004")
pad5.Profile = sketch11
pad5.Length = 3.175
pad5.Reversed = True
body4 = doc.addObject("PartDesign::Body", "Body003")

# Sketch on YZ plane
sketch12 = body4.newObject("Sketcher::SketchObject", "Sketch011")
sketch12.AttachmentSupport = (doc.getObject("YZ_Plane003"), [""])
sketch12.MapMode = "FlatFace"
sketch12.AttachmentOffset = App.Placement(App.Vector(0, 0, -32), App.Rotation())
sketch12.addGeometry([
    Part.LineSegment(App.Vector(-33.45, 0, 0), App.Vector(-33.45, -4, 0)),  # 0
    Part.LineSegment(App.Vector(-33.45, -4, 0), App.Vector(-39.8, -4, 0)),  # 1
    Part.LineSegment(App.Vector(-39.8, -4, 0), App.Vector(-39.8, -12.153379, 0)),  # 2
    Part.LineSegment(App.Vector(-39.8, -12.153379, 0), App.Vector(-33.45, -12.153379, 0)),  # 3
    Part.LineSegment(App.Vector(-33.45, -12.153379, 0), App.Vector(-33.45, -39.153379, 0)),  # 4
    Part.LineSegment(App.Vector(-33.45, -39.153379, 0), App.Vector(-39.8, -39.153379, 0)),  # 5
    Part.LineSegment(App.Vector(-39.8, -39.153379, 0), App.Vector(-39.8, -47.306758, 0)),  # 6
    Part.LineSegment(App.Vector(-39.8, -47.306758, 0), App.Vector(-33.45, -47.306758, 0)),  # 7
    Part.LineSegment(App.Vector(-33.45, -47.306758, 0), App.Vector(-33.45, -51.306758, 0)),  # 8
    Part.ArcOfCircle(Part.Circle(App.Vector(-32.95, -51.306758, 0), App.Vector(0, 0, 1), 0.5), math.radians(180), math.radians(309.975551)),  # 9
    Part.LineSegment(App.Vector(-32.62877, -51.689917, 0), App.Vector(27.972865, -0.883159, 0)),  # 10
    Part.ArcOfCircle(Part.Circle(App.Vector(27.651635, -0.5, 0), App.Vector(0, 0, 1), 0.5), math.radians(-50.024449), math.radians(90)),  # 11
    Part.LineSegment(App.Vector(27.651635, 0, 0), App.Vector(26.703379, 0, 0)),  # 12
    Part.LineSegment(App.Vector(26.703379, 0, 0), App.Vector(26.703379, 6.35, 0)),  # 13
    Part.LineSegment(App.Vector(26.703379, 6.35, 0), App.Vector(23.703379, 6.35, 0)),  # 14
    Part.LineSegment(App.Vector(23.703379, 6.35, 0), App.Vector(23.703379, 0, 0)),  # 15
    Part.LineSegment(App.Vector(23.703379, 0, 0), App.Vector(-22.296621, 0, 0)),  # 16
    Part.LineSegment(App.Vector(-22.296621, 0, 0), App.Vector(-22.296621, 6.35, 0)),  # 17
    Part.LineSegment(App.Vector(-22.296621, 6.35, 0), App.Vector(-30.45, 6.35, 0)),  # 18
    Part.LineSegment(App.Vector(-30.45, 6.35, 0), App.Vector(-30.45, 0, 0)),  # 19
    Part.LineSegment(App.Vector(-30.45, 0, 0), App.Vector(-33.45, 0, 0)),  # 20
], False)
sketch12.addConstraint([
    Sketcher.Constraint("Coincident", 0, 2, 1, 1),
    Sketcher.Constraint("Coincident", 1, 2, 2, 1),
    Sketcher.Constraint("Coincident", 2, 2, 3, 1),
    Sketcher.Constraint("Coincident", 3, 2, 4, 1),
    Sketcher.Constraint("Coincident", 4, 2, 5, 1),
    Sketcher.Constraint("Coincident", 5, 2, 6, 1),
    Sketcher.Constraint("Coincident", 6, 2, 7, 1),
    Sketcher.Constraint("Coincident", 7, 2, 8, 1),
    Sketcher.Constraint("Tangent", 8, 2, 9, 1),
    Sketcher.Constraint("Tangent", 9, 2, 10, 1),
    Sketcher.Constraint("Tangent", 10, 2, 11, 1),
    Sketcher.Constraint("Tangent", 11, 2, 12, 1),
    Sketcher.Constraint("Coincident", 12, 2, 13, 1),
    Sketcher.Constraint("Coincident", 13, 2, 14, 1),
    Sketcher.Constraint("Coincident", 14, 2, 15, 1),
    Sketcher.Constraint("Coincident", 15, 2, 16, 1),
    Sketcher.Constraint("Coincident", 16, 2, 17, 1),
    Sketcher.Constraint("Coincident", 17, 2, 18, 1),
    Sketcher.Constraint("Coincident", 18, 2, 19, 1),
    Sketcher.Constraint("Coincident", 19, 2, 20, 1),
    Sketcher.Constraint("Coincident", 20, 2, 0, 1),
    Sketcher.Constraint("Vertical", 0),
    Sketcher.Constraint("Horizontal", 1),
    Sketcher.Constraint("Vertical", 2),
    Sketcher.Constraint("Horizontal", 3),
    Sketcher.Constraint("Vertical", 4),
    Sketcher.Constraint("Horizontal", 5),
    Sketcher.Constraint("Vertical", 6),
    Sketcher.Constraint("Horizontal", 7),
    Sketcher.Constraint("Vertical", 8),
    Sketcher.Constraint("Horizontal", 12),
    Sketcher.Constraint("Vertical", 13),
    Sketcher.Constraint("Horizontal", 14),
    Sketcher.Constraint("Vertical", 15),
    Sketcher.Constraint("Horizontal", 16),
    Sketcher.Constraint("Vertical", 17),
    Sketcher.Constraint("Horizontal", 18),
    Sketcher.Constraint("Vertical", 19),
    Sketcher.Constraint("Horizontal", 20),
    Sketcher.Constraint("Equal", 9, 11),
    Sketcher.Constraint("PointOnObject", 11, 2, -1),
    Sketcher.Constraint("PointOnObject", 15, 2, -1),
    Sketcher.Constraint("PointOnObject", 19, 2, -1),
    Sketcher.Constraint("Horizontal", 14, 2, 17, 2),
    Sketcher.Constraint("Vertical", 0, 2, 3, 2),
    Sketcher.Constraint("Vertical", 2, 2, 5, 2),
    Sketcher.Constraint("Vertical", 4, 2, 7, 2),
    Sketcher.Constraint("Equal", 14, 20),
    Sketcher.Constraint("Equal", 18, 2),
    Sketcher.Constraint("Equal", 2, 6),
    Sketcher.Constraint("Equal", 0, 8),
    Sketcher.Constraint("Equal", 7, 13),
    Sketcher.Constraint("Radius", 9, 0.5),
    Sketcher.Constraint("DistanceX", 14, 2, 14, 1, 3.0),
    Sketcher.Constraint("DistanceX", 16, 2, 16, 1, 46.0),
    Sketcher.Constraint("DistanceY", 0, 2, 0, 1, 4.0),
    Sketcher.Constraint("DistanceY", 4, 2, 4, 1, 27.0),
    Sketcher.Constraint("DistanceX", 1, 2, 1, 1, 6.35),
    Sketcher.Constraint("DistanceX", 1, 2, -1, 1, 39.8),
    Sketcher.Constraint("DistanceX", 18, 2, 18, 1, 8.153379),
    Sketcher.Constraint("DistanceX", 12, 2, 12, 1, 0.948256),
])
pad6 = body4.newObject("PartDesign::Pad", "Pad005")
pad6.Profile = sketch12
pad6.Length = 3.175

doc.recompute()
